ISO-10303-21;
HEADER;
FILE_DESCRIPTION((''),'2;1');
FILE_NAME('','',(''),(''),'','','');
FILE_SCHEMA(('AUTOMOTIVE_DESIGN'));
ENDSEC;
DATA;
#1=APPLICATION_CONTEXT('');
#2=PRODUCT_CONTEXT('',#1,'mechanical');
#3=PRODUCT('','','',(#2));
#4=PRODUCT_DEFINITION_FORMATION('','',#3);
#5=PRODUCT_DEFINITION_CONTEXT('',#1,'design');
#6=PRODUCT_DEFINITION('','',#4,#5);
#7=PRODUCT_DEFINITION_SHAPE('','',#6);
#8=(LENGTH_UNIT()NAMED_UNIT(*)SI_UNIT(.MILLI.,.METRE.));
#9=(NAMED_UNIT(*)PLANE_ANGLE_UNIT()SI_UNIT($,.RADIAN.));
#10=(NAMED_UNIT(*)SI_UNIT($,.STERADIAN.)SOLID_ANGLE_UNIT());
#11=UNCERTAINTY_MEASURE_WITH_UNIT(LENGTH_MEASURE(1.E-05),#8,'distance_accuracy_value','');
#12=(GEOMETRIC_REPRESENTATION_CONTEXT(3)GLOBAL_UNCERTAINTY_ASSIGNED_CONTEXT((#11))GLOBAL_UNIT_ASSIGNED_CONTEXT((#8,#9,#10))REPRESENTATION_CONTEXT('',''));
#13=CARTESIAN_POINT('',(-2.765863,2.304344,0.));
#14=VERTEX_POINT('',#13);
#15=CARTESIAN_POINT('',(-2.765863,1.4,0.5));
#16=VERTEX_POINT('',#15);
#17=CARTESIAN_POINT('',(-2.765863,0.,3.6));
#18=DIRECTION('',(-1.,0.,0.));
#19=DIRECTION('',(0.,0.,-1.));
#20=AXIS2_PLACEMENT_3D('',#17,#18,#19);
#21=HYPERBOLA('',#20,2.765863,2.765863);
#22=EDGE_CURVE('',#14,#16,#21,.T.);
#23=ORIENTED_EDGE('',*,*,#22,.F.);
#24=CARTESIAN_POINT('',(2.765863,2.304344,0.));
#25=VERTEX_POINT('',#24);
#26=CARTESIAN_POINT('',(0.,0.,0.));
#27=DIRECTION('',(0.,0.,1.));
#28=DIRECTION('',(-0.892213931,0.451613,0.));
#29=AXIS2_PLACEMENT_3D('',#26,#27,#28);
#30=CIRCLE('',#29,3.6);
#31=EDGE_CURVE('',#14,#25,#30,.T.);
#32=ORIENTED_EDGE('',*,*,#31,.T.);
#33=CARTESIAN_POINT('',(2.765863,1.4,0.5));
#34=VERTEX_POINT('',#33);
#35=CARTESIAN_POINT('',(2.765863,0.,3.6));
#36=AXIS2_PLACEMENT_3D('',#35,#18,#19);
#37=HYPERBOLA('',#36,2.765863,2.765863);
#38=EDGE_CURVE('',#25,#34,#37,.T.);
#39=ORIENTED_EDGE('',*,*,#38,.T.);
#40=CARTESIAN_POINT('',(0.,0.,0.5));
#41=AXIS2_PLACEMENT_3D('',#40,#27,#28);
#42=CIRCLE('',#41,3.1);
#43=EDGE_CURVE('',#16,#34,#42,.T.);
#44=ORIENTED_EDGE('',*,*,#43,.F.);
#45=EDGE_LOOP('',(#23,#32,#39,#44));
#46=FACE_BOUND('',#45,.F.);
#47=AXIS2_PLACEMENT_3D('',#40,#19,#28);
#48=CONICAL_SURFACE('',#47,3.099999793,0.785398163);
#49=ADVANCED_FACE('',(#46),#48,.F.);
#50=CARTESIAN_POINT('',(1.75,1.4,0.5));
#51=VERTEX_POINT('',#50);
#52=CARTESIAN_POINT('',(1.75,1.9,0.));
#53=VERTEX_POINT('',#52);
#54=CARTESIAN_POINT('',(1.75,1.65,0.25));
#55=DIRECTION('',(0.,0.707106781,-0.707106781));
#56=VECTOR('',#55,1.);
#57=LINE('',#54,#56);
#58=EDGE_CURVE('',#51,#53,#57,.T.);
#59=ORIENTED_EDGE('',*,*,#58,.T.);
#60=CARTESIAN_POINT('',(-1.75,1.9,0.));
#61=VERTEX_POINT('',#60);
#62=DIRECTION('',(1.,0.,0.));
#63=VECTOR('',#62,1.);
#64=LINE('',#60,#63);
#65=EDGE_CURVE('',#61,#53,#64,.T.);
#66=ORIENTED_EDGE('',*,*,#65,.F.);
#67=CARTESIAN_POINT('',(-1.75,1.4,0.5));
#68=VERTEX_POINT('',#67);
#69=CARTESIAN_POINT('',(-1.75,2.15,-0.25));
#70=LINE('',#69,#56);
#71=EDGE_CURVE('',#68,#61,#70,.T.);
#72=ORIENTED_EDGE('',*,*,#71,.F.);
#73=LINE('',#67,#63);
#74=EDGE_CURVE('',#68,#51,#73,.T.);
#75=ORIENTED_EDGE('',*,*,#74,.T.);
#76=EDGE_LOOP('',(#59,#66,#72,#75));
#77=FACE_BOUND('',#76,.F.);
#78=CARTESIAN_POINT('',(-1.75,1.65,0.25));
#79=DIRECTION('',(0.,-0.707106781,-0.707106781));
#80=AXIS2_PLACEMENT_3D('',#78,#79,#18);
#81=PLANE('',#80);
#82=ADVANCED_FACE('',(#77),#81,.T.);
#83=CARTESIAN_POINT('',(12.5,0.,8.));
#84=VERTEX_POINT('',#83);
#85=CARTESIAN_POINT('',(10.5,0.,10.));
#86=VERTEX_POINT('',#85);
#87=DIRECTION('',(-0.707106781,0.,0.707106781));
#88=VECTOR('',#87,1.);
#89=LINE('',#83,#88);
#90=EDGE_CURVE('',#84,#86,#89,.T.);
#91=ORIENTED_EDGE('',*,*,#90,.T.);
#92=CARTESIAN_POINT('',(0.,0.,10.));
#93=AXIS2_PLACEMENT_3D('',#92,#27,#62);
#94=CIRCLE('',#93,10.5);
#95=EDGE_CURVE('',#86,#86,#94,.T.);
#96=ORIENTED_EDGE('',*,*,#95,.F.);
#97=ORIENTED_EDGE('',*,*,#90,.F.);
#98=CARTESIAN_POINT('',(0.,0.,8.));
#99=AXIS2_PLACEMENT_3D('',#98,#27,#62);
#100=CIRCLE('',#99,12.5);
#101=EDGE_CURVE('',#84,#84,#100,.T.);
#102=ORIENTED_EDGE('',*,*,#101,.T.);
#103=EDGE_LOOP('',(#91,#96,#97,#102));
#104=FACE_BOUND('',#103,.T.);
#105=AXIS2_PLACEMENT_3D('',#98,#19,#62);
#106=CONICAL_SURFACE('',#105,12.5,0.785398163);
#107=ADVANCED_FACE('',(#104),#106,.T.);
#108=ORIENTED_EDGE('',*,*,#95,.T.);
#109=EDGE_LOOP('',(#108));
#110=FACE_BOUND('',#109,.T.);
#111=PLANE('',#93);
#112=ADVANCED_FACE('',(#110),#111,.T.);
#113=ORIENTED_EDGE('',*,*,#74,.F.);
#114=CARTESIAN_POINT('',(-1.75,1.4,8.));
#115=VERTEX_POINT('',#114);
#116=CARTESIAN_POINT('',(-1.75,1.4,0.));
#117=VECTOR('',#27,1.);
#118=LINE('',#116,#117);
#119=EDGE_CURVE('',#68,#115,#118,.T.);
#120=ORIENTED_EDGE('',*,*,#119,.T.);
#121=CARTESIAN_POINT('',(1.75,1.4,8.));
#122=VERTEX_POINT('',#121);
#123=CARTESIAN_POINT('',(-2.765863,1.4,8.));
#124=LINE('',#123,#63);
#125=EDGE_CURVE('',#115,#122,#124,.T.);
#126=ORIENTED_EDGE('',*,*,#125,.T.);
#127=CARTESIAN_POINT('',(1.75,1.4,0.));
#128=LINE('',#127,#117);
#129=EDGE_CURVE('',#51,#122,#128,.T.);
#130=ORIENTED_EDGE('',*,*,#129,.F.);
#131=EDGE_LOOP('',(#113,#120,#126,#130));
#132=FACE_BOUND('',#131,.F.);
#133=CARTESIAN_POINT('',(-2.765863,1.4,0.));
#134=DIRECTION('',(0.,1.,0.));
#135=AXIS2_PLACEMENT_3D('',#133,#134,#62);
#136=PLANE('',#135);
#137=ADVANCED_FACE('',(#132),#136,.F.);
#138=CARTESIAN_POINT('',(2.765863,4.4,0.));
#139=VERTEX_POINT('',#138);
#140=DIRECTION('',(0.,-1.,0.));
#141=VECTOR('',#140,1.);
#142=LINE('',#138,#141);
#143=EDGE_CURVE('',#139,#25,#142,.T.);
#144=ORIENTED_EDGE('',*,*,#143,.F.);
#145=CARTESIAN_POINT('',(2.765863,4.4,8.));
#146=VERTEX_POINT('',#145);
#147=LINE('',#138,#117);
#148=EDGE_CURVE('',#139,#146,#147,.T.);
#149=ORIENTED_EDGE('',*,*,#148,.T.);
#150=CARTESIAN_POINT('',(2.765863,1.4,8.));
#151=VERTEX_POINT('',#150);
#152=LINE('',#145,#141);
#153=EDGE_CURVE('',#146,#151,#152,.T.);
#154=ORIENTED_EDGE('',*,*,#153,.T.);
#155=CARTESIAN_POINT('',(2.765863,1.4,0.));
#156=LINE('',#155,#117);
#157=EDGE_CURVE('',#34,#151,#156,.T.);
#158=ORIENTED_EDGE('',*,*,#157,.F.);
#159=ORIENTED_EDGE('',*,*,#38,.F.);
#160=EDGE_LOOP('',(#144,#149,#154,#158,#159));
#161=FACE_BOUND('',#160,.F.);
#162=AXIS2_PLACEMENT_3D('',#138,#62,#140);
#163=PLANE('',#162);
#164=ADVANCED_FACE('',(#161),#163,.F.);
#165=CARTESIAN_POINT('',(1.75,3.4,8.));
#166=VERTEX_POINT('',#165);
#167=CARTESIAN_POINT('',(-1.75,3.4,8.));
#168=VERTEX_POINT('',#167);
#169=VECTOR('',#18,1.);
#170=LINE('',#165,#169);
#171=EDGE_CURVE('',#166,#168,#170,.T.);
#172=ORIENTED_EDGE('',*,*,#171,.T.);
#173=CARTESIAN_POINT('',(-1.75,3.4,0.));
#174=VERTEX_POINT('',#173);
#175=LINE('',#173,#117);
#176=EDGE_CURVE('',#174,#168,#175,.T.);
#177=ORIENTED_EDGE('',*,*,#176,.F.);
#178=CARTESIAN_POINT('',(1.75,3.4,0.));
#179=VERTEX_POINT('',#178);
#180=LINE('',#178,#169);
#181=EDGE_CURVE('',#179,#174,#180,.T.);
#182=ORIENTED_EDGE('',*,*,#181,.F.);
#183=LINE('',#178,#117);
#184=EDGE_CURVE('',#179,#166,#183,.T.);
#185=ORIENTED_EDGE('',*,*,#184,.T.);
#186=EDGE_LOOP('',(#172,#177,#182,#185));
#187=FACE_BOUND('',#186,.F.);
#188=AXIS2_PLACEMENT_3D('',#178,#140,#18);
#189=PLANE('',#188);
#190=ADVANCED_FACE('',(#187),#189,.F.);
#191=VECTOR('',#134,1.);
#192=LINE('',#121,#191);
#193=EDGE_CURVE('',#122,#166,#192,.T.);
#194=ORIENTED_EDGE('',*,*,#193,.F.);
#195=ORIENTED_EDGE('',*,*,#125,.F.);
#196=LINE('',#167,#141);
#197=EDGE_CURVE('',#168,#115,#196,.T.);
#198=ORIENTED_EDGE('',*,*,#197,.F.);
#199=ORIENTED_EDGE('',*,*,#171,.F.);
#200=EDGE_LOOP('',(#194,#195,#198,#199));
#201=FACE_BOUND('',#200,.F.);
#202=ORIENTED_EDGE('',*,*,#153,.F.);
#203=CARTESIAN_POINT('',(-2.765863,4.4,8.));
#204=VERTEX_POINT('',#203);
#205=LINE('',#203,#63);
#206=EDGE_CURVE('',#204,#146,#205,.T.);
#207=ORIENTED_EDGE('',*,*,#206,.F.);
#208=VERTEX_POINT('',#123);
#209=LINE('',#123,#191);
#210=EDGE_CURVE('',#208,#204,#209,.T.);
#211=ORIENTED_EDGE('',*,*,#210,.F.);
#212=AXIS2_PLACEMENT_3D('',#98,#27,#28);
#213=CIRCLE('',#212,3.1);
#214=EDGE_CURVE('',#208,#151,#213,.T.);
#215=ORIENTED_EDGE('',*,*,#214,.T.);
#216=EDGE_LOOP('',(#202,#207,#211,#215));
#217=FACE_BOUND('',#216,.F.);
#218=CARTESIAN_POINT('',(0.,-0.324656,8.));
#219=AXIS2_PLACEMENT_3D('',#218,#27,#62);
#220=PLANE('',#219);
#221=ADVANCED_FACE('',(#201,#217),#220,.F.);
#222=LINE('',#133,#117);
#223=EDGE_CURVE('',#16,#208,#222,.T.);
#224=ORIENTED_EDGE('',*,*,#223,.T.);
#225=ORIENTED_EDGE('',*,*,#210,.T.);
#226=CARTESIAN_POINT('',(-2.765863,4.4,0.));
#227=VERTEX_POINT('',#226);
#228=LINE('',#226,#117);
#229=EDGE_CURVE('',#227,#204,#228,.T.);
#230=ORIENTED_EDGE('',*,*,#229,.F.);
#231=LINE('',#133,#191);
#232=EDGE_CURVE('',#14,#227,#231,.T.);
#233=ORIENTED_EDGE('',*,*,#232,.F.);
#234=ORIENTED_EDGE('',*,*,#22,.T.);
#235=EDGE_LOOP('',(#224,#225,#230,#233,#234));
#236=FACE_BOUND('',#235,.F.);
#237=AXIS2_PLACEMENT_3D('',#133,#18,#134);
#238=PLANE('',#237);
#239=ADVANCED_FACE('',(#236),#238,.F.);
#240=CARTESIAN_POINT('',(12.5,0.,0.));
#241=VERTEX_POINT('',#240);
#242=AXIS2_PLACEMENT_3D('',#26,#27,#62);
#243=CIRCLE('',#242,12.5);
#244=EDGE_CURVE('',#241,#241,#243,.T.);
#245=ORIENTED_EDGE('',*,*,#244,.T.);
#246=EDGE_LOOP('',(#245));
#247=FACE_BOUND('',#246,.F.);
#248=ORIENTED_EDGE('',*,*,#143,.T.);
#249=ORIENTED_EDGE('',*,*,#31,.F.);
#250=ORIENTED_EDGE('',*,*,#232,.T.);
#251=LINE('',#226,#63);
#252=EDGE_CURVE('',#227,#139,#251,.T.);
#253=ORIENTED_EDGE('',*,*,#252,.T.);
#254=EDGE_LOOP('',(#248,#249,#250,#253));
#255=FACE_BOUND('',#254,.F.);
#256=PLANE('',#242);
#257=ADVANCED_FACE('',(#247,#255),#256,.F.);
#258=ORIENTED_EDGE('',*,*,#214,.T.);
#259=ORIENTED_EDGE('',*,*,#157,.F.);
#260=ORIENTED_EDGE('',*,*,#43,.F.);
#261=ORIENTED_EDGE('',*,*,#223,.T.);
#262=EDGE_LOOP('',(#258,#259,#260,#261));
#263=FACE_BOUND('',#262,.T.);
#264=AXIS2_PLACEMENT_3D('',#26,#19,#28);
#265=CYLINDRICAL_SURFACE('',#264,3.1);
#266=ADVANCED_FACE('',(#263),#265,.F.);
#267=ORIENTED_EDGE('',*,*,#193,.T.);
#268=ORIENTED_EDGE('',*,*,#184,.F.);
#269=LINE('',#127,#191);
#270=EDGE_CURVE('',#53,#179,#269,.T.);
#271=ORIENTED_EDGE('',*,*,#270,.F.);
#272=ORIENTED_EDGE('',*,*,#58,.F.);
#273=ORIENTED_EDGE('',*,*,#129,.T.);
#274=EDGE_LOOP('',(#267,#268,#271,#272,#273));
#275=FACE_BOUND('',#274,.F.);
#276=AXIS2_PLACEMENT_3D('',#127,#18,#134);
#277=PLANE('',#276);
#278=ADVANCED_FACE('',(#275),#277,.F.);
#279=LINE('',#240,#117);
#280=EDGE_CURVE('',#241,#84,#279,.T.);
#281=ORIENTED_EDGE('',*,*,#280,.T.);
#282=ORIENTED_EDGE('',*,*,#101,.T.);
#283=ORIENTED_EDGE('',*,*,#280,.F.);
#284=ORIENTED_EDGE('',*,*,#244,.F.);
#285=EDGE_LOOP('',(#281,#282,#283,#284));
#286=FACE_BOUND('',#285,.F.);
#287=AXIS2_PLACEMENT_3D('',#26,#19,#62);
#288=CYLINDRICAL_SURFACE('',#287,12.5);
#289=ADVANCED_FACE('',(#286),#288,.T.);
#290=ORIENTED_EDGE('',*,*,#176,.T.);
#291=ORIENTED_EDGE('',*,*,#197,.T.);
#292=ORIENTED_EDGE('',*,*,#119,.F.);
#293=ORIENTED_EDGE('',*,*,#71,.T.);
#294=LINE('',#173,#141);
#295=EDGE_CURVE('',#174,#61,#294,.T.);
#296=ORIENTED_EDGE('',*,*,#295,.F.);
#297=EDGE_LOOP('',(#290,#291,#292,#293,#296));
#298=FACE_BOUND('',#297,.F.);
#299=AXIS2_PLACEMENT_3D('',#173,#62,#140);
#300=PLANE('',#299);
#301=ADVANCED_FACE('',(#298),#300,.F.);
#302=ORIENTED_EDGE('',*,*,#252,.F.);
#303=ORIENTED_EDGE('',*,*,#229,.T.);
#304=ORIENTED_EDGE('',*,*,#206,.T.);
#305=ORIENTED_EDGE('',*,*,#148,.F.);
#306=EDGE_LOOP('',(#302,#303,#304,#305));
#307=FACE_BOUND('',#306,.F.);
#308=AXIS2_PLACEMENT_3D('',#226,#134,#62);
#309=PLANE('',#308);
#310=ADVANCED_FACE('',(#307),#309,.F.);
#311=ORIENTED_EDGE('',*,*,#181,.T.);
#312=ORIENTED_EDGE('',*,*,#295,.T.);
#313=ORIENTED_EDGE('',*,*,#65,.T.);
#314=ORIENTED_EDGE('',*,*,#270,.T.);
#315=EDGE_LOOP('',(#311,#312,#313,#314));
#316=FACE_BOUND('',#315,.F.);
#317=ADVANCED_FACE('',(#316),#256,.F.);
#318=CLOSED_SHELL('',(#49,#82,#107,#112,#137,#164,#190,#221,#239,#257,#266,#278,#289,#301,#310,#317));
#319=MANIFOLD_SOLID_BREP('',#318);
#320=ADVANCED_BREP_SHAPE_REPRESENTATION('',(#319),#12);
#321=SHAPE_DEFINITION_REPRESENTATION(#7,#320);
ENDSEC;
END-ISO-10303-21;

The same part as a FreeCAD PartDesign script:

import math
import FreeCAD as App
import Part
import Sketcher


def edges_at(feature, points):
    """Names of the edges that pass closest to the given points."""
    edges = feature.Shape.Edges
    near = lambda p: min(range(len(edges)), key=lambda i: edges[i].distToShape(Part.Vertex(*p))[0])
    return sorted({f"Edge{near(p) + 1}" for p in points})

doc = App.newDocument("Part")
body = doc.addObject("PartDesign::Body", "Body")

sketch1 = body.newObject("Sketcher::SketchObject", "Sketch")
sketch1.AttachmentSupport = (doc.getObject("XY_Plane"), [""])
sketch1.MapMode = "FlatFace"
sketch1.addGeometry(Part.Circle(App.Vector(0, 0, 0), App.Vector(0, 0, 1), 12), False)
sketch1.addConstraint([
    Sketcher.Constraint("Coincident", 0, 3, -1, 1),
    Sketcher.Constraint("Diameter", 0, 25.0),
])
pad1 = body.newObject("PartDesign::Pad", "Pad")
pad1.Profile = sketch1
pad1.Length = 10

sketch2 = body.newObject("Sketcher::SketchObject", "Sketch001")
sketch2.AttachmentSupport = (doc.getObject("XY_Plane"), [""])
sketch2.MapMode = "FlatFace"
sketch2.addGeometry([
    Part.ArcOfCircle(Part.Circle(App.Vector(0, 0, 0), App.Vector(0, 0, 1), 3.1), math.radians(153), math.radians(387)),
    Part.LineSegment(App.Vector(2.8, 1.4, 0), App.Vector(-2.8, 1.4, 0)),
], False)
sketch2.addConstraint([
    Sketcher.Constraint("Coincident", 0, 1, 1, 2),
    Sketcher.Constraint("Coincident", 1, 1, 0, 2),
    Sketcher.Constraint("Horizontal", 1),
    Sketcher.Constraint("Coincident", 0, 3, -1, 1),
    Sketcher.Constraint("Radius", 0, 3.1),
    Sketcher.Constraint("DistanceY", -1, 1, 0, 1, 1.4),
])
pocket1 = body.newObject("PartDesign::Pocket", "Pocket")
pocket1.Profile = sketch2
pocket1.Length = 8
pocket1.Reversed = True
doc.recompute()

chamfer = body.newObject("PartDesign::Chamfer", "Chamfer")
chamfer.Base = (pocket1, edges_at(pocket1, [(-12.5, 0, 10)]))
chamfer.Size = 2

sketch3 = body.newObject("Sketcher::SketchObject", "Sketch002")
sketch3.AttachmentSupport = (doc.getObject("XY_Plane"), [""])
sketch3.MapMode = "FlatFace"
sketch3.addGeometry([
    Part.LineSegment(App.Vector(1.8, 3.4, 0), App.Vector(1.8, 1.4, 0)),
    Part.LineSegment(App.Vector(1.8, 1.4, 0), App.Vector(2.8, 1.4, 0)),
    Part.LineSegment(App.Vector(2.8, 1.4, 0), App.Vector(2.8, 4.4, 0)),
    Part.LineSegment(App.Vector(2.8, 4.4, 0), App.Vector(-2.8, 4.4, 0)),
    Part.LineSegment(App.Vector(-2.8, 4.4, 0), App.Vector(-2.8, 1.4, 0)),
    Part.LineSegment(App.Vector(-2.8, 1.4, 0), App.Vector(-1.8, 1.4, 0)),
    Part.LineSegment(App.Vector(-1.8, 1.4, 0), App.Vector(-1.8, 3.4, 0)),
    Part.LineSegment(App.Vector(-1.8, 3.4, 0), App.Vector(1.8, 3.4, 0)),
], False)
sketch3.addConstraint([
    Sketcher.Constraint("Coincident", 0, 2, 1, 1),
    Sketcher.Constraint("Coincident", 1, 2, 2, 1),
    Sketcher.Constraint("Coincident", 2, 2, 3, 1),
    Sketcher.Constraint("Coincident", 3, 2, 4, 1),
    Sketcher.Constraint("Coincident", 4, 2, 5, 1),
    Sketcher.Constraint("Coincident", 5, 2, 6, 1),
    Sketcher.Constraint("Coincident", 6, 2, 7, 1),
    Sketcher.Constraint("Coincident", 7, 2, 0, 1),
    Sketcher.Constraint("Vertical", 0),
    Sketcher.Constraint("Horizontal", 1),
    Sketcher.Constraint("Vertical", 2),
    Sketcher.Constraint("Horizontal", 3),
    Sketcher.Constraint("Vertical", 4),
    Sketcher.Constraint("Horizontal", 5),
    Sketcher.Constraint("Vertical", 6),
    Sketcher.Constraint("Horizontal", 7),
    Sketcher.Constraint("Symmetric", 1, 2, 4, 2, -2),
    Sketcher.Constraint("Equal", 1, 5),
    Sketcher.Constraint("DistanceY", 0, 2, 0, 1, 2.0),
    Sketcher.Constraint("DistanceY", 2, 1, 2, 2, 3.0),
    Sketcher.Constraint("DistanceX", 7, 1, 7, 2, 3.5),
    Sketcher.Constraint("DistanceY", -1, 1, 0, 2, 1.4),
    Sketcher.Constraint("DistanceX", 1, 1, 1, 2, 1.015863),
])
pocket2 = body.newObject("PartDesign::Pocket", "Pocket001")
pocket2.Profile = sketch3
pocket2.Length = 8
pocket2.Reversed = True
doc.recompute()

chamfer2 = body.newObject("PartDesign::Chamfer", "Chamfer001")
chamfer2.Base = (pocket2, edges_at(pocket2, [(0, -3.1, 0), (0, 1.4, 0)]))
chamfer2.Size = 0.5

doc.recompute()
